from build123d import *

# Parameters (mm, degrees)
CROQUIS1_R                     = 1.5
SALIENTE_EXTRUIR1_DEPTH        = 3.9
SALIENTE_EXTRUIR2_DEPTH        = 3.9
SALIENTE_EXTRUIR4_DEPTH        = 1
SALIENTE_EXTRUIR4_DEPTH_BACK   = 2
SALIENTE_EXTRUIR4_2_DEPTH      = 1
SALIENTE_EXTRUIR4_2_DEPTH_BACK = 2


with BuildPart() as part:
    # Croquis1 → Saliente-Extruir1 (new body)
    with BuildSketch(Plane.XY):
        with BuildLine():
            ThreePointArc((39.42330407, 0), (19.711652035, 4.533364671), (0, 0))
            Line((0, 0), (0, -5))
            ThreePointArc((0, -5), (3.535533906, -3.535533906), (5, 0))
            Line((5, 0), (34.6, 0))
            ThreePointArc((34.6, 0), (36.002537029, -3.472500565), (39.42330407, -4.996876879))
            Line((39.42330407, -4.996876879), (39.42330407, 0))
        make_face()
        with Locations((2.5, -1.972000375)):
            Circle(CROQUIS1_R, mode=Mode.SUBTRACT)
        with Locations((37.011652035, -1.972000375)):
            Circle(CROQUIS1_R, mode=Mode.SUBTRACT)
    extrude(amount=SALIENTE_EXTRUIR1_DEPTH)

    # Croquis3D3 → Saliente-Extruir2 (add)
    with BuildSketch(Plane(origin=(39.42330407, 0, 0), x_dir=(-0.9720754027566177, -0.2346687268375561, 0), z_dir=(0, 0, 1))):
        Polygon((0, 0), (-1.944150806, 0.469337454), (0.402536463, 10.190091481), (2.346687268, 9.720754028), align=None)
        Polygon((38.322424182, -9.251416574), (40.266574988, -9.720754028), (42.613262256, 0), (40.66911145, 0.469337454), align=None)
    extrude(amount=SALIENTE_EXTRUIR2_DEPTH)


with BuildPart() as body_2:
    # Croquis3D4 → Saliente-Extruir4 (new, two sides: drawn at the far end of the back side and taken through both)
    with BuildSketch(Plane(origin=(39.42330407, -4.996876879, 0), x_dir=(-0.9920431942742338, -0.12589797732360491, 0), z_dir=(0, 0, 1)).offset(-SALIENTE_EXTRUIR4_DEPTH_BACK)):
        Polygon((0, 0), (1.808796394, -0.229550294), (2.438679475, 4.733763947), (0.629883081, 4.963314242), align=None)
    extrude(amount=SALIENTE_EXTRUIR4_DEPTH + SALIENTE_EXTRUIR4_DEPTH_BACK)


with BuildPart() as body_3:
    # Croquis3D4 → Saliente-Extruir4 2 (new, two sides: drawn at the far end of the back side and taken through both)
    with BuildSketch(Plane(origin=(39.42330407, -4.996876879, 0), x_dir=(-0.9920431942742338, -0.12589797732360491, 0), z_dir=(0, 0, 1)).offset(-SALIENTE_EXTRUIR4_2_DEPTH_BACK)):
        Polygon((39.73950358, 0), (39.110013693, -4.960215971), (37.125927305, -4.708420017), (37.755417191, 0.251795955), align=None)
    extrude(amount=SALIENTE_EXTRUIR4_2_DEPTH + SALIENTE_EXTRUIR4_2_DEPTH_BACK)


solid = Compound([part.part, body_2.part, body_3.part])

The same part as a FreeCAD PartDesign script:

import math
import FreeCAD as App
import Part
import Sketcher
Q = App.Units.Quantity


def add_polygon(sketch, points):
    """Adds a closed chain of lines whose ends are joined by coincident constraints."""
    first, n = sketch.GeometryCount, len(points)
    for a, b in zip(points, points[1:] + points[:1]):
        sketch.addGeometry(Part.LineSegment(App.Vector(*a, 0), App.Vector(*b, 0)), False)
    for i in range(n):
        sketch.addConstraint(Sketcher.Constraint("Coincident", first + i, 2, first + (i + 1) % n, 1))

doc = App.newDocument("Part")
body = doc.addObject("PartDesign::Body", "Body")

sketch1 = body.newObject("Sketcher::SketchObject", "Sketch")
sketch1.AttachmentSupport = (doc.getObject("XY_Plane"), [""])
sketch1.MapMode = "FlatFace"
sketch1.addGeometry(Part.ArcOfCircle(Part.Circle(App.Vector(19.711652, -40.587715, 0), App.Vector(0, 0, 1), 45.12108), math.radians(64.096212), math.radians(115.903788)), False)
sketch1.addGeometry(Part.LineSegment(App.Vector(0, 0, 0), App.Vector(0, -5, 0)), False)
sketch1.addGeometry(Part.ArcOfCircle(Part.Circle(App.Vector(0, 0, 0), App.Vector(0, 0, 1), 5), math.radians(-90), math.radians(0)), False)
sketch1.addGeometry(Part.LineSegment(App.Vector(5, 0, 0), App.Vector(34.6, 0, 0)), False)
sketch1.addGeometry(Part.ArcOfCircle(Part.Circle(App.Vector(39.6, 0, 0), App.Vector(0, 0, 1), 5), math.radians(180), math.radians(267.974792)), False)
sketch1.addGeometry(Part.LineSegment(App.Vector(39.423304, -4.996877, 0), App.Vector(39.423304, 0, 0)), False)
sketch1.addGeometry(Part.Circle(App.Vector(2.5, -1.972, 0), App.Vector(0, 0, 1), 1.5), False)
sketch1.addGeometry(Part.Circle(App.Vector(37.011652, -1.972, 0), App.Vector(0, 0, 1), 1.5), False)
sketch1.addConstraint(Sketcher.Constraint("Coincident", 0, 2, 1, 1))
sketch1.addConstraint(Sketcher.Constraint("Coincident", 1, 2, 2, 1))
sketch1.addConstraint(Sketcher.Constraint("Coincident", 2, 2, 3, 1))
sketch1.addConstraint(Sketcher.Constraint("Coincident", 3, 2, 4, 1))
sketch1.addConstraint(Sketcher.Constraint("Coincident", 4, 2, 5, 1))
sketch1.addConstraint(Sketcher.Constraint("Coincident", 5, 2, 0, 1))
sketch1.addConstraint(Sketcher.Constraint("Vertical", 1))
sketch1.addConstraint(Sketcher.Constraint("Horizontal", 3))
sketch1.addConstraint(Sketcher.Constraint("Vertical", 5))
sketch1.addConstraint(Sketcher.Constraint("Coincident", 2, 3, -1, 1))
sketch1.addConstraint(Sketcher.Constraint("Coincident", 0, 2, -1, 1))
sketch1.addConstraint(Sketcher.Constraint("Equal", 2, 4))
sketch1.addConstraint(Sketcher.Constraint("Equal", 6, 7))
sketch1.addConstraint(Sketcher.Constraint("PointOnObject", 4, 3, -1))
sketch1.addConstraint(Sketcher.Constraint("PointOnObject", 2, 2, -1))
sketch1.addConstraint(Sketcher.Constraint("PointOnObject", 5, 2, -1))
sketch1.addConstraint(Sketcher.Constraint("Horizontal", 6, 3, 7, 3))
sketch1.addConstraint(Sketcher.Constraint("Diameter", 6, Q("3 mm")))
sketch1.addConstraint(Sketcher.Constraint("Radius", 2, Q("5 mm")))
sketch1.addConstraint(Sketcher.Constraint("DistanceX", 3, 1, 3, 2, Q("29.6 mm")))
sketch1.addConstraint(Sketcher.Constraint("DistanceX", -1, 1, 6, 3, Q("2.5 mm")))
sketch1.addConstraint(Sketcher.Constraint("DistanceX", 0, 3, 7, 3, Q("17.3 mm")))
sketch1.addConstraint(Sketcher.Constraint("Radius", 0, Q("45.12108 mm")))
sketch1.addConstraint(Sketcher.Constraint("DistanceY", 6, 3, -1, 1, Q("1.972 mm")))
sketch1.addConstraint(Sketcher.Constraint("DistanceY", 5, 1, 5, 2, Q("4.996877 mm")))
pad1 = body.newObject("PartDesign::Pad", "Pad")
pad1.Profile = sketch1
pad1.Length = 3.9

sketch2 = body.newObject("Sketcher::SketchObject", "Sketch001")
sketch2.AttachmentSupport = (doc.getObject("XY_Plane"), [""])
sketch2.MapMode = "FlatFace"
add_polygon(sketch2, [(41.423304, 0), (39.423304, 0), (39.423304, -10), (41.423304, -10)])
add_polygon(sketch2, [(0, 0), (-2, 0), (-2, -10), (0, -10)])
sketch2.addConstraint(Sketcher.Constraint("Horizontal", 0))
sketch2.addConstraint(Sketcher.Constraint("Vertical", 1))
sketch2.addConstraint(Sketcher.Constraint("Horizontal", 2))
sketch2.addConstraint(Sketcher.Constraint("Vertical", 3))
sketch2.addConstraint(Sketcher.Constraint("Horizontal", 4))
sketch2.addConstraint(Sketcher.Constraint("Vertical", 5))
sketch2.addConstraint(Sketcher.Constraint("Horizontal", 6))
sketch2.addConstraint(Sketcher.Constraint("Vertical", 7))
sketch2.addConstraint(Sketcher.Constraint("Coincident", 7, 2, -1, 1))
sketch2.addConstraint(Sketcher.Constraint("PointOnObject", 0, 2, -1))
sketch2.addConstraint(Sketcher.Constraint("Horizontal", 2, 2, 5, 2))
sketch2.addConstraint(Sketcher.Constraint("Equal", 2, 4))
sketch2.addConstraint(Sketcher.Constraint("DistanceX", 0, 2, 0, 1, Q("2 mm")))
sketch2.addConstraint(Sketcher.Constraint("DistanceY", 1, 2, 1, 1, Q("10 mm")))
sketch2.addConstraint(Sketcher.Constraint("DistanceX", -1, 1, 0, 2, Q("39.423304 mm")))
pad2 = body.newObject("PartDesign::Pad", "Pad001")
pad2.Profile = sketch2
pad2.Length = 3.9
body2 = doc.addObject("PartDesign::Body", "Body001")

sketch3 = body2.newObject("Sketcher::SketchObject", "Sketch002")
sketch3.AttachmentSupport = (doc.getObject("XY_Plane001"), [""])
sketch3.MapMode = "FlatFace"
add_polygon(sketch3, [(39.423304, -4.996877), (37.6, -4.996877), (37.6, -10), (39.423304, -10)])
sketch3.addConstraint(Sketcher.Constraint("Horizontal", 0))
sketch3.addConstraint(Sketcher.Constraint("Vertical", 1))
sketch3.addConstraint(Sketcher.Constraint("Horizontal", 2))
sketch3.addConstraint(Sketcher.Constraint("Vertical", 3))
sketch3.addConstraint(Sketcher.Constraint("DistanceY", 1, 2, -1, 1, Q("10 mm")))
sketch3.addConstraint(Sketcher.Constraint("DistanceX", -1, 1, 0, 2, Q("37.6 mm")))
sketch3.addConstraint(Sketcher.Constraint("DistanceX", 0, 2, 0, 1, Q("1.823304 mm")))
sketch3.addConstraint(Sketcher.Constraint("DistanceY", 1, 2, 1, 1, Q("5.003123 mm")))
pad3 = body2.newObject("PartDesign::Pad", "Pad002")
pad3.Profile = sketch3
pad3.Type = "TwoLengths"
pad3.Length = 1
pad3.Length2 = 2
body3 = doc.addObject("PartDesign::Body", "Body002")

sketch4 = body3.newObject("Sketcher::SketchObject", "Sketch003")
sketch4.AttachmentSupport = (doc.getObject("XY_Plane002"), [""])
sketch4.MapMode = "FlatFace"
add_polygon(sketch4, [(0, -5), (0, -10), (2, -10), (2, -5)])
sketch4.addConstraint(Sketcher.Constraint("Vertical", 0))
sketch4.addConstraint(Sketcher.Constraint("Horizontal", 1))
sketch4.addConstraint(Sketcher.Constraint("Vertical", 2))
sketch4.addConstraint(Sketcher.Constraint("Horizontal", 3))
sketch4.addConstraint(Sketcher.Constraint("PointOnObject", 0, 2, -2))
sketch4.addConstraint(Sketcher.Constraint("DistanceX", 1, 1, 1, 2, Q("2 mm")))
sketch4.addConstraint(Sketcher.Constraint("DistanceY", 0, 2, 0, 1, Q("5 mm")))
sketch4.addConstraint(Sketcher.Constraint("DistanceY", 0, 2, -1, 1, Q("10 mm")))
pad4 = body3.newObject("PartDesign::Pad", "Pad003")
pad4.Profile = sketch4
pad4.Type = "TwoLengths"
pad4.Length = 1
pad4.Length2 = 2

doc.recompute()
